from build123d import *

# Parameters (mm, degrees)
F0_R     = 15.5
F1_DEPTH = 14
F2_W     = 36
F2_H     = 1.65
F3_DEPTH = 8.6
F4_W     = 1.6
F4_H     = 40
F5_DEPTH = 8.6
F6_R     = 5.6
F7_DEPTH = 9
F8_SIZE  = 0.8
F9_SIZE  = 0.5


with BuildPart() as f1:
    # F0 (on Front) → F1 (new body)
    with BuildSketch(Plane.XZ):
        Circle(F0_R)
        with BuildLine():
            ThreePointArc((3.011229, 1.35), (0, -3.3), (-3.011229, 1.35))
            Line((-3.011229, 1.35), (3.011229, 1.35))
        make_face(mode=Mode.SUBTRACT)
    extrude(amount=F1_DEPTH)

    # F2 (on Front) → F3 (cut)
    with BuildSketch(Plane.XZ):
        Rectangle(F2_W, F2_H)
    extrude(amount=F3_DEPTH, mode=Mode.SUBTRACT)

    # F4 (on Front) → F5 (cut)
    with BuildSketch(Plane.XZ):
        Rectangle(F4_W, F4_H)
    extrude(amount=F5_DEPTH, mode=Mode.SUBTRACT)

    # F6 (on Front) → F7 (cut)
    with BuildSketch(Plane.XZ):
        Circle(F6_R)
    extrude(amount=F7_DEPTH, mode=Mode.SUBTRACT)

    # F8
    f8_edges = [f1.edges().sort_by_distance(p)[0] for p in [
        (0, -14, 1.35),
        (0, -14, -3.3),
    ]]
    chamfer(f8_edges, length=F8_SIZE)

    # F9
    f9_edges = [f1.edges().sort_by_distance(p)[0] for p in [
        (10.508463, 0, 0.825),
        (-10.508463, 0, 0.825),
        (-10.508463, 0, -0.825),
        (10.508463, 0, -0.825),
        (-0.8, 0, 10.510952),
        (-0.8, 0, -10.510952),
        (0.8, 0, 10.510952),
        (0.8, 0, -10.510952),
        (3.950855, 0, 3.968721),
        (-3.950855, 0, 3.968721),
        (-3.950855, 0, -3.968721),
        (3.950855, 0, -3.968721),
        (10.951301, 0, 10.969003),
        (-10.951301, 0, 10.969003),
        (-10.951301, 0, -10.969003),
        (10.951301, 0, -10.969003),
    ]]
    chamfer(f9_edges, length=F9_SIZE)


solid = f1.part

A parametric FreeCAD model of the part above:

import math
import FreeCAD as App
import Part
import Sketcher
from FreeCAD import Vector


def edges_at(feature, points):
    """Names of the edges that pass closest to the given points."""
    edges = feature.Shape.Edges
    near = lambda p: min(range(len(edges)), key=lambda i: edges[i].distToShape(Part.Vertex(*p))[0])
    return sorted({f"Edge{near(p) + 1}" for p in points})

doc = App.newDocument("Part")
body = doc.addObject("PartDesign::Body", "Body")

# Sketch on XZ plane
sketch1 = body.newObject("Sketcher::SketchObject", "Sketch")
sketch1.AttachmentSupport = (doc.getObject("XZ_Plane"), [""])
sketch1.MapMode = "FlatFace"
sketch1.addGeometry([
    Part.Circle(Vector(0, 0, 0), Vector(0, 0, 1), 15.5),
    Part.LineSegment(Vector(-3, 1.4, 0), Vector(3, 1.4, 0)),
    Part.ArcOfCircle(Part.Circle(Vector(0, 0, 0), Vector(0, 0, 1), 3.3), math.radians(156), math.radians(384)),
], False)
sketch1.addConstraint([
    Sketcher.Constraint("Coincident", 1, 1, 2, 1),
    Sketcher.Constraint("Coincident", 2, 2, 1, 2),
    Sketcher.Constraint("Horizontal", 1),
    Sketcher.Constraint("Coincident", 0, 3, -1, 1),
    Sketcher.Constraint("Coincident", 2, 3, -1, 1),
    Sketcher.Constraint("Diameter", 0, 31.0),
    Sketcher.Constraint("Radius", 2, 3.3),
    Sketcher.Constraint("DistanceY", -1, 1, 1, 1, 1.35),
])
pad1 = body.newObject("PartDesign::Pad", "Pad")
pad1.Profile = sketch1
pad1.Length = 14

# Sketch on XZ plane
sketch2 = body.newObject("Sketcher::SketchObject", "Sketch001")
sketch2.AttachmentSupport = (doc.getObject("XZ_Plane"), [""])
sketch2.MapMode = "FlatFace"
sketch2.addGeometry([
    Part.LineSegment(Vector(-18, 0.8, 0), Vector(-18, -0.8, 0)),
    Part.LineSegment(Vector(-18, -0.8, 0), Vector(18, -0.8, 0)),
    Part.LineSegment(Vector(18, -0.8, 0), Vector(18, 0.8, 0)),
    Part.LineSegment(Vector(18, 0.8, 0), Vector(-18, 0.8, 0)),
], False)
sketch2.addConstraint([
    Sketcher.Constraint("Coincident", 0, 2, 1, 1),
    Sketcher.Constraint("Coincident", 1, 2, 2, 1),
    Sketcher.Constraint("Coincident", 2, 2, 3, 1),
    Sketcher.Constraint("Coincident", 3, 2, 0, 1),
    Sketcher.Constraint("Vertical", 0),
    Sketcher.Constraint("Horizontal", 1),
    Sketcher.Constraint("Vertical", 2),
    Sketcher.Constraint("Horizontal", 3),
    Sketcher.Constraint("Symmetric", 0, 2, 2, 2, -1, 1),
    Sketcher.Constraint("DistanceX", 1, 1, 1, 2, 36.0),
    Sketcher.Constraint("DistanceY", 0, 2, 0, 1, 1.65),
])
pocket1 = body.newObject("PartDesign::Pocket", "Pocket")
pocket1.Profile = sketch2
pocket1.Length = 8.6
pocket1.Reversed = True

# Sketch on XZ plane
sketch3 = body.newObject("Sketcher::SketchObject", "Sketch002")
sketch3.AttachmentSupport = (doc.getObject("XZ_Plane"), [""])
sketch3.MapMode = "FlatFace"
sketch3.addGeometry([
    Part.LineSegment(Vector(-0.8, 20, 0), Vector(-0.8, -20, 0)),
    Part.LineSegment(Vector(-0.8, -20, 0), Vector(0.8, -20, 0)),
    Part.LineSegment(Vector(0.8, -20, 0), Vector(0.8, 20, 0)),
    Part.LineSegment(Vector(0.8, 20, 0), Vector(-0.8, 20, 0)),
], False)
sketch3.addConstraint([
    Sketcher.Constraint("Coincident", 0, 2, 1, 1),
    Sketcher.Constraint("Coincident", 1, 2, 2, 1),
    Sketcher.Constraint("Coincident", 2, 2, 3, 1),
    Sketcher.Constraint("Coincident", 3, 2, 0, 1),
    Sketcher.Constraint("Vertical", 0),
    Sketcher.Constraint("Horizontal", 1),
    Sketcher.Constraint("Vertical", 2),
    Sketcher.Constraint("Horizontal", 3),
    Sketcher.Constraint("Symmetric", 0, 2, 2, 2, -1, 1),
    Sketcher.Constraint("DistanceY", 0, 2, 0, 1, 40.0),
    Sketcher.Constraint("DistanceX", 1, 1, 1, 2, 1.6),
])
pocket2 = body.newObject("PartDesign::Pocket", "Pocket001")
pocket2.Profile = sketch3
pocket2.Length = 8.6
pocket2.Reversed = True

# Sketch on XZ plane
sketch4 = body.newObject("Sketcher::SketchObject", "Sketch003")
sketch4.AttachmentSupport = (doc.getObject("XZ_Plane"), [""])
sketch4.MapMode = "FlatFace"
sketch4.addGeometry(Part.Circle(Vector(0, 0, 0), Vector(0, 0, 1), 6), False)
sketch4.addConstraint([
    Sketcher.Constraint("Coincident", 0, 3, -1, 1),
    Sketcher.Constraint("Diameter", 0, 11.2),
])
pocket3 = body.newObject("PartDesign::Pocket", "Pocket002")
pocket3.Profile = sketch4
pocket3.Length = 9
pocket3.Reversed = True
doc.recompute()

chamfer = body.newObject("PartDesign::Chamfer", "Chamfer")
chamfer.Base = (pocket3, edges_at(pocket3, [(0, -14, 1.35), (0, -14, -3.3)]))
chamfer.Size = 0.8
doc.recompute()

chamfer2 = body.newObject("PartDesign::Chamfer", "Chamfer001")
chamfer2.Base = (chamfer, edges_at(chamfer, [
    (10.508, 0, 0.825),
    (-10.508, 0, 0.825),
    (-10.508, 0, -0.825),
    (10.508, 0, -0.825),
    (-0.8, 0, 10.511),
    (-0.8, 0, -10.511),
    (0.8, 0, 10.511),
    (0.8, 0, -10.511),
    (3.951, 0, 3.969),
    (-3.951, 0, 3.969),
    (-3.951, 0, -3.969),
    (3.951, 0, -3.969),
    (10.951, 0, 10.969),
    (-10.951, 0, 10.969),
    (-10.951, 0, -10.969),
    (10.951, 0, -10.969),
]))
chamfer2.Size = 0.5

doc.recompute()
